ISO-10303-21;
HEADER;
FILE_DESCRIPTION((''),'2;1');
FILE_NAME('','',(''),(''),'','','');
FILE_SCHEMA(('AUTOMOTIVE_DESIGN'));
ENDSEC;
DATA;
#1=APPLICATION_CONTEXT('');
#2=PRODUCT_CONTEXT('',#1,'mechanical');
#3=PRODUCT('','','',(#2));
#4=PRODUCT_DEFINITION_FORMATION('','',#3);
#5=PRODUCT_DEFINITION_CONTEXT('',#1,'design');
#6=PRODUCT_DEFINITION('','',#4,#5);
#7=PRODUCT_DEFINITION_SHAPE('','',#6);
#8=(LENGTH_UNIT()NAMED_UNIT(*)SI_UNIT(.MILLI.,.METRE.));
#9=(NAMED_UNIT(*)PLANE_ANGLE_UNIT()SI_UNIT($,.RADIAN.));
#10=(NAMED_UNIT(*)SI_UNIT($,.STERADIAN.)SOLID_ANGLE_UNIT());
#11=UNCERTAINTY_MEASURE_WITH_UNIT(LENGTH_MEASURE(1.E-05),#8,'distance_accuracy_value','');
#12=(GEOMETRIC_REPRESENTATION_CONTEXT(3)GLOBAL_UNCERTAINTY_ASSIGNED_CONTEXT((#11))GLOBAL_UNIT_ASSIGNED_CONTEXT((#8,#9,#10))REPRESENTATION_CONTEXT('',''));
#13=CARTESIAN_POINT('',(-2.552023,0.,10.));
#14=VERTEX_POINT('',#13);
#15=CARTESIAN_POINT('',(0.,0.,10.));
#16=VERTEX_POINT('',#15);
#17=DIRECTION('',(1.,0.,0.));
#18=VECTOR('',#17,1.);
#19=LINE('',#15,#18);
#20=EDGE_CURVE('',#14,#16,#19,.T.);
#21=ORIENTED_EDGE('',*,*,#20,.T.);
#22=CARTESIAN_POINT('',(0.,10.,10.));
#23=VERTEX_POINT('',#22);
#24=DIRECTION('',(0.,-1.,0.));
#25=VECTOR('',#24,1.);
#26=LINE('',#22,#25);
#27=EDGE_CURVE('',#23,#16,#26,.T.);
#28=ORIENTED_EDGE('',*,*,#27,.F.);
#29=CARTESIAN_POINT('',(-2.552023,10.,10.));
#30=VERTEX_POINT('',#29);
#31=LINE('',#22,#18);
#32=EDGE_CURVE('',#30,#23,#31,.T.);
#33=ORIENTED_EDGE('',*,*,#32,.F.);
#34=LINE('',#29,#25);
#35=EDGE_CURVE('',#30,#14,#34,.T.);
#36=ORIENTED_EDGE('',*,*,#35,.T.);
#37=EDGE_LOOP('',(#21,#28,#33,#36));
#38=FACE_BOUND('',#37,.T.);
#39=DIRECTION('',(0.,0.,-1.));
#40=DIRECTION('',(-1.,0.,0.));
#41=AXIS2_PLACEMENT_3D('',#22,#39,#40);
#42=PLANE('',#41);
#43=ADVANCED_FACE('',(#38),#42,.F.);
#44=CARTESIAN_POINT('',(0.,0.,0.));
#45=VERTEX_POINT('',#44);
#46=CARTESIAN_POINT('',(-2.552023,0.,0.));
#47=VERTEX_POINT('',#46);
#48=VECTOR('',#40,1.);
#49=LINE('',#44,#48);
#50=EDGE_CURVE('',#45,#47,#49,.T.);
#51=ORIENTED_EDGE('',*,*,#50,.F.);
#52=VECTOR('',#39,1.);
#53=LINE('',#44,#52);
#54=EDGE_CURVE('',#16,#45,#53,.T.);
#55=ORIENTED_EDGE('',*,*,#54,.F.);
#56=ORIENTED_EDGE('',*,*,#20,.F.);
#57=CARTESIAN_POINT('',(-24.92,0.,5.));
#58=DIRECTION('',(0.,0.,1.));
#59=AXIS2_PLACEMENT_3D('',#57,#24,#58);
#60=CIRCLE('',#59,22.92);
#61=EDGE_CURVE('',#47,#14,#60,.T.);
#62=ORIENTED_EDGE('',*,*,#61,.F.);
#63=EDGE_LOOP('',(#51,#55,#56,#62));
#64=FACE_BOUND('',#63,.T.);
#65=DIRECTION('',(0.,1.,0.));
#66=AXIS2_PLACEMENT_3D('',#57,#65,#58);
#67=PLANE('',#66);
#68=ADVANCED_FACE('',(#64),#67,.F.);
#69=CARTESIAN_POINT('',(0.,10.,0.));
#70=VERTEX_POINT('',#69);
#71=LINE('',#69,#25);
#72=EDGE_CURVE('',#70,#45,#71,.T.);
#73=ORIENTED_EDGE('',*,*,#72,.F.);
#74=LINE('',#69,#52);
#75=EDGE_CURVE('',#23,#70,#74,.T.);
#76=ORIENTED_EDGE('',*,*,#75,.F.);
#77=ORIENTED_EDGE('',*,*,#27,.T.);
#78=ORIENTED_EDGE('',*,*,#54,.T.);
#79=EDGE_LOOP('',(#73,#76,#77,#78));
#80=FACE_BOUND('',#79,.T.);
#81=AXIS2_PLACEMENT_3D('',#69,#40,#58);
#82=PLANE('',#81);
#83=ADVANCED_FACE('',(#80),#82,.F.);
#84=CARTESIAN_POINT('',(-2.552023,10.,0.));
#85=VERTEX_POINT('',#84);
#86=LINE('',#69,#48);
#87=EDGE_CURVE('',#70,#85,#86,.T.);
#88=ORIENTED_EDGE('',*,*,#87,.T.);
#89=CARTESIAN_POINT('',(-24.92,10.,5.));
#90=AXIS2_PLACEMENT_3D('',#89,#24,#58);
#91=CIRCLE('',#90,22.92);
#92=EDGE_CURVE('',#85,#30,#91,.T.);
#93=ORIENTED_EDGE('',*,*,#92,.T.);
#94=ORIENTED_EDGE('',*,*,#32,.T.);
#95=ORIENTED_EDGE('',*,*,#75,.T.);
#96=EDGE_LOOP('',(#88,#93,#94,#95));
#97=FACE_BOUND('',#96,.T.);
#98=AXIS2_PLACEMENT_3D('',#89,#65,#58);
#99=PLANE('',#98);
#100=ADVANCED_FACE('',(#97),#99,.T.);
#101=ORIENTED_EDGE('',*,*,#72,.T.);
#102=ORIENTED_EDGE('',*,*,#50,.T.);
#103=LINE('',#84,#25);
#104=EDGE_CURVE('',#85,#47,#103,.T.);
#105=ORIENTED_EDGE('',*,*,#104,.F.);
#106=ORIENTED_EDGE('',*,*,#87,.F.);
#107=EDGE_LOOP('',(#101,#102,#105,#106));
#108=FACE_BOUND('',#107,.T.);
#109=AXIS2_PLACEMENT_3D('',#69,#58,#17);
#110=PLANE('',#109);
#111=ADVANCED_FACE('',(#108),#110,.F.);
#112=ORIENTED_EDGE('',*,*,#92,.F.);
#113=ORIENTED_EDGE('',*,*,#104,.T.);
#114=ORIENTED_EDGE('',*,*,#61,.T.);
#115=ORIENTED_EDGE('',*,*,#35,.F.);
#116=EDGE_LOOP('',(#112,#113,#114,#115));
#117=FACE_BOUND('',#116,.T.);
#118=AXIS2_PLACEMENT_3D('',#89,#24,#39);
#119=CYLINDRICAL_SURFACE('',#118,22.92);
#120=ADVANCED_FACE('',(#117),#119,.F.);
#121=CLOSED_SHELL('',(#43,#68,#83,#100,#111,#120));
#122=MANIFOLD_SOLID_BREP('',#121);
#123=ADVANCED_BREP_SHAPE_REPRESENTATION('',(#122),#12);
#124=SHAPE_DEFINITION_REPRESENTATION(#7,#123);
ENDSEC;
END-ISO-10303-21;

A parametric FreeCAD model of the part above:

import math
import FreeCAD as App
import Part
import Sketcher

V = App.Vector

doc = App.newDocument("Part")
params = doc.addObject("Spreadsheet::Sheet", "Params")
for row, (alias, value) in enumerate([
    ("sketch1_height", "10 mm"),
    ("sketch1_radius", "22.92 mm"),
    ("pad1_length", "10 mm"),
], start=1):
    params.set(f"A{row}", alias)
    params.set(f"B{row}", "=" + value)
    params.setAlias(f"B{row}", alias)

body = doc.addObject("PartDesign::Body", "Body")

# Sketch on XZ plane
sketch1 = doc.addObject("Sketcher::SketchObject", "Sketch")
body.addObject(sketch1)
sketch1.AttachmentSupport = (doc.XZ_Plane, [""])
sketch1.MapMode = "FlatFace"
sketch1.addGeometry([
    Part.LineSegment(V(0, 10, 0), V(0, 0, 0)),
    Part.LineSegment(V(0, 0, 0), V(-2.552023, 0, 0)),
    Part.ArcOfCircle(Part.Circle(V(-24.92, 5, 0), V(0, 0, 1), 22.92), math.radians(-12.600402), math.radians(12.600402)),
    Part.LineSegment(V(-2.552023, 10, 0), V(0, 10, 0)),
], False)
sketch1.addConstraint([
    Sketcher.Constraint("Coincident", 0, 2, 1, 1),
    Sketcher.Constraint("Coincident", 1, 2, 2, 1),
    Sketcher.Constraint("Coincident", 2, 2, 3, 1),
    Sketcher.Constraint("Coincident", 3, 2, 0, 1),
    Sketcher.Constraint("Vertical", 0),
    Sketcher.Constraint("Horizontal", 1),
    Sketcher.Constraint("Horizontal", 3),
    Sketcher.Constraint("Coincident", 0, 2, -1, 1),
    Sketcher.Constraint("Vertical", 1, 2, 2, 2),
    Sketcher.Constraint("DistanceY", 0, 2, 0, 1, 10.0),
    Sketcher.Constraint("Radius", 2, 22.92),
    Sketcher.Constraint("DistanceX", 2, 3, -1, 1, 24.92),
])
sketch1.setExpression("Constraints[9]", "Params.sketch1_height")
sketch1.setExpression("Constraints[10]", "Params.sketch1_radius")
pad1 = doc.addObject("PartDesign::Pad", "Pad")
body.addObject(pad1)
pad1.Profile = sketch1
pad1.setExpression("Length", "Params.pad1_length")
pad1.Reversed = True

doc.recompute()
